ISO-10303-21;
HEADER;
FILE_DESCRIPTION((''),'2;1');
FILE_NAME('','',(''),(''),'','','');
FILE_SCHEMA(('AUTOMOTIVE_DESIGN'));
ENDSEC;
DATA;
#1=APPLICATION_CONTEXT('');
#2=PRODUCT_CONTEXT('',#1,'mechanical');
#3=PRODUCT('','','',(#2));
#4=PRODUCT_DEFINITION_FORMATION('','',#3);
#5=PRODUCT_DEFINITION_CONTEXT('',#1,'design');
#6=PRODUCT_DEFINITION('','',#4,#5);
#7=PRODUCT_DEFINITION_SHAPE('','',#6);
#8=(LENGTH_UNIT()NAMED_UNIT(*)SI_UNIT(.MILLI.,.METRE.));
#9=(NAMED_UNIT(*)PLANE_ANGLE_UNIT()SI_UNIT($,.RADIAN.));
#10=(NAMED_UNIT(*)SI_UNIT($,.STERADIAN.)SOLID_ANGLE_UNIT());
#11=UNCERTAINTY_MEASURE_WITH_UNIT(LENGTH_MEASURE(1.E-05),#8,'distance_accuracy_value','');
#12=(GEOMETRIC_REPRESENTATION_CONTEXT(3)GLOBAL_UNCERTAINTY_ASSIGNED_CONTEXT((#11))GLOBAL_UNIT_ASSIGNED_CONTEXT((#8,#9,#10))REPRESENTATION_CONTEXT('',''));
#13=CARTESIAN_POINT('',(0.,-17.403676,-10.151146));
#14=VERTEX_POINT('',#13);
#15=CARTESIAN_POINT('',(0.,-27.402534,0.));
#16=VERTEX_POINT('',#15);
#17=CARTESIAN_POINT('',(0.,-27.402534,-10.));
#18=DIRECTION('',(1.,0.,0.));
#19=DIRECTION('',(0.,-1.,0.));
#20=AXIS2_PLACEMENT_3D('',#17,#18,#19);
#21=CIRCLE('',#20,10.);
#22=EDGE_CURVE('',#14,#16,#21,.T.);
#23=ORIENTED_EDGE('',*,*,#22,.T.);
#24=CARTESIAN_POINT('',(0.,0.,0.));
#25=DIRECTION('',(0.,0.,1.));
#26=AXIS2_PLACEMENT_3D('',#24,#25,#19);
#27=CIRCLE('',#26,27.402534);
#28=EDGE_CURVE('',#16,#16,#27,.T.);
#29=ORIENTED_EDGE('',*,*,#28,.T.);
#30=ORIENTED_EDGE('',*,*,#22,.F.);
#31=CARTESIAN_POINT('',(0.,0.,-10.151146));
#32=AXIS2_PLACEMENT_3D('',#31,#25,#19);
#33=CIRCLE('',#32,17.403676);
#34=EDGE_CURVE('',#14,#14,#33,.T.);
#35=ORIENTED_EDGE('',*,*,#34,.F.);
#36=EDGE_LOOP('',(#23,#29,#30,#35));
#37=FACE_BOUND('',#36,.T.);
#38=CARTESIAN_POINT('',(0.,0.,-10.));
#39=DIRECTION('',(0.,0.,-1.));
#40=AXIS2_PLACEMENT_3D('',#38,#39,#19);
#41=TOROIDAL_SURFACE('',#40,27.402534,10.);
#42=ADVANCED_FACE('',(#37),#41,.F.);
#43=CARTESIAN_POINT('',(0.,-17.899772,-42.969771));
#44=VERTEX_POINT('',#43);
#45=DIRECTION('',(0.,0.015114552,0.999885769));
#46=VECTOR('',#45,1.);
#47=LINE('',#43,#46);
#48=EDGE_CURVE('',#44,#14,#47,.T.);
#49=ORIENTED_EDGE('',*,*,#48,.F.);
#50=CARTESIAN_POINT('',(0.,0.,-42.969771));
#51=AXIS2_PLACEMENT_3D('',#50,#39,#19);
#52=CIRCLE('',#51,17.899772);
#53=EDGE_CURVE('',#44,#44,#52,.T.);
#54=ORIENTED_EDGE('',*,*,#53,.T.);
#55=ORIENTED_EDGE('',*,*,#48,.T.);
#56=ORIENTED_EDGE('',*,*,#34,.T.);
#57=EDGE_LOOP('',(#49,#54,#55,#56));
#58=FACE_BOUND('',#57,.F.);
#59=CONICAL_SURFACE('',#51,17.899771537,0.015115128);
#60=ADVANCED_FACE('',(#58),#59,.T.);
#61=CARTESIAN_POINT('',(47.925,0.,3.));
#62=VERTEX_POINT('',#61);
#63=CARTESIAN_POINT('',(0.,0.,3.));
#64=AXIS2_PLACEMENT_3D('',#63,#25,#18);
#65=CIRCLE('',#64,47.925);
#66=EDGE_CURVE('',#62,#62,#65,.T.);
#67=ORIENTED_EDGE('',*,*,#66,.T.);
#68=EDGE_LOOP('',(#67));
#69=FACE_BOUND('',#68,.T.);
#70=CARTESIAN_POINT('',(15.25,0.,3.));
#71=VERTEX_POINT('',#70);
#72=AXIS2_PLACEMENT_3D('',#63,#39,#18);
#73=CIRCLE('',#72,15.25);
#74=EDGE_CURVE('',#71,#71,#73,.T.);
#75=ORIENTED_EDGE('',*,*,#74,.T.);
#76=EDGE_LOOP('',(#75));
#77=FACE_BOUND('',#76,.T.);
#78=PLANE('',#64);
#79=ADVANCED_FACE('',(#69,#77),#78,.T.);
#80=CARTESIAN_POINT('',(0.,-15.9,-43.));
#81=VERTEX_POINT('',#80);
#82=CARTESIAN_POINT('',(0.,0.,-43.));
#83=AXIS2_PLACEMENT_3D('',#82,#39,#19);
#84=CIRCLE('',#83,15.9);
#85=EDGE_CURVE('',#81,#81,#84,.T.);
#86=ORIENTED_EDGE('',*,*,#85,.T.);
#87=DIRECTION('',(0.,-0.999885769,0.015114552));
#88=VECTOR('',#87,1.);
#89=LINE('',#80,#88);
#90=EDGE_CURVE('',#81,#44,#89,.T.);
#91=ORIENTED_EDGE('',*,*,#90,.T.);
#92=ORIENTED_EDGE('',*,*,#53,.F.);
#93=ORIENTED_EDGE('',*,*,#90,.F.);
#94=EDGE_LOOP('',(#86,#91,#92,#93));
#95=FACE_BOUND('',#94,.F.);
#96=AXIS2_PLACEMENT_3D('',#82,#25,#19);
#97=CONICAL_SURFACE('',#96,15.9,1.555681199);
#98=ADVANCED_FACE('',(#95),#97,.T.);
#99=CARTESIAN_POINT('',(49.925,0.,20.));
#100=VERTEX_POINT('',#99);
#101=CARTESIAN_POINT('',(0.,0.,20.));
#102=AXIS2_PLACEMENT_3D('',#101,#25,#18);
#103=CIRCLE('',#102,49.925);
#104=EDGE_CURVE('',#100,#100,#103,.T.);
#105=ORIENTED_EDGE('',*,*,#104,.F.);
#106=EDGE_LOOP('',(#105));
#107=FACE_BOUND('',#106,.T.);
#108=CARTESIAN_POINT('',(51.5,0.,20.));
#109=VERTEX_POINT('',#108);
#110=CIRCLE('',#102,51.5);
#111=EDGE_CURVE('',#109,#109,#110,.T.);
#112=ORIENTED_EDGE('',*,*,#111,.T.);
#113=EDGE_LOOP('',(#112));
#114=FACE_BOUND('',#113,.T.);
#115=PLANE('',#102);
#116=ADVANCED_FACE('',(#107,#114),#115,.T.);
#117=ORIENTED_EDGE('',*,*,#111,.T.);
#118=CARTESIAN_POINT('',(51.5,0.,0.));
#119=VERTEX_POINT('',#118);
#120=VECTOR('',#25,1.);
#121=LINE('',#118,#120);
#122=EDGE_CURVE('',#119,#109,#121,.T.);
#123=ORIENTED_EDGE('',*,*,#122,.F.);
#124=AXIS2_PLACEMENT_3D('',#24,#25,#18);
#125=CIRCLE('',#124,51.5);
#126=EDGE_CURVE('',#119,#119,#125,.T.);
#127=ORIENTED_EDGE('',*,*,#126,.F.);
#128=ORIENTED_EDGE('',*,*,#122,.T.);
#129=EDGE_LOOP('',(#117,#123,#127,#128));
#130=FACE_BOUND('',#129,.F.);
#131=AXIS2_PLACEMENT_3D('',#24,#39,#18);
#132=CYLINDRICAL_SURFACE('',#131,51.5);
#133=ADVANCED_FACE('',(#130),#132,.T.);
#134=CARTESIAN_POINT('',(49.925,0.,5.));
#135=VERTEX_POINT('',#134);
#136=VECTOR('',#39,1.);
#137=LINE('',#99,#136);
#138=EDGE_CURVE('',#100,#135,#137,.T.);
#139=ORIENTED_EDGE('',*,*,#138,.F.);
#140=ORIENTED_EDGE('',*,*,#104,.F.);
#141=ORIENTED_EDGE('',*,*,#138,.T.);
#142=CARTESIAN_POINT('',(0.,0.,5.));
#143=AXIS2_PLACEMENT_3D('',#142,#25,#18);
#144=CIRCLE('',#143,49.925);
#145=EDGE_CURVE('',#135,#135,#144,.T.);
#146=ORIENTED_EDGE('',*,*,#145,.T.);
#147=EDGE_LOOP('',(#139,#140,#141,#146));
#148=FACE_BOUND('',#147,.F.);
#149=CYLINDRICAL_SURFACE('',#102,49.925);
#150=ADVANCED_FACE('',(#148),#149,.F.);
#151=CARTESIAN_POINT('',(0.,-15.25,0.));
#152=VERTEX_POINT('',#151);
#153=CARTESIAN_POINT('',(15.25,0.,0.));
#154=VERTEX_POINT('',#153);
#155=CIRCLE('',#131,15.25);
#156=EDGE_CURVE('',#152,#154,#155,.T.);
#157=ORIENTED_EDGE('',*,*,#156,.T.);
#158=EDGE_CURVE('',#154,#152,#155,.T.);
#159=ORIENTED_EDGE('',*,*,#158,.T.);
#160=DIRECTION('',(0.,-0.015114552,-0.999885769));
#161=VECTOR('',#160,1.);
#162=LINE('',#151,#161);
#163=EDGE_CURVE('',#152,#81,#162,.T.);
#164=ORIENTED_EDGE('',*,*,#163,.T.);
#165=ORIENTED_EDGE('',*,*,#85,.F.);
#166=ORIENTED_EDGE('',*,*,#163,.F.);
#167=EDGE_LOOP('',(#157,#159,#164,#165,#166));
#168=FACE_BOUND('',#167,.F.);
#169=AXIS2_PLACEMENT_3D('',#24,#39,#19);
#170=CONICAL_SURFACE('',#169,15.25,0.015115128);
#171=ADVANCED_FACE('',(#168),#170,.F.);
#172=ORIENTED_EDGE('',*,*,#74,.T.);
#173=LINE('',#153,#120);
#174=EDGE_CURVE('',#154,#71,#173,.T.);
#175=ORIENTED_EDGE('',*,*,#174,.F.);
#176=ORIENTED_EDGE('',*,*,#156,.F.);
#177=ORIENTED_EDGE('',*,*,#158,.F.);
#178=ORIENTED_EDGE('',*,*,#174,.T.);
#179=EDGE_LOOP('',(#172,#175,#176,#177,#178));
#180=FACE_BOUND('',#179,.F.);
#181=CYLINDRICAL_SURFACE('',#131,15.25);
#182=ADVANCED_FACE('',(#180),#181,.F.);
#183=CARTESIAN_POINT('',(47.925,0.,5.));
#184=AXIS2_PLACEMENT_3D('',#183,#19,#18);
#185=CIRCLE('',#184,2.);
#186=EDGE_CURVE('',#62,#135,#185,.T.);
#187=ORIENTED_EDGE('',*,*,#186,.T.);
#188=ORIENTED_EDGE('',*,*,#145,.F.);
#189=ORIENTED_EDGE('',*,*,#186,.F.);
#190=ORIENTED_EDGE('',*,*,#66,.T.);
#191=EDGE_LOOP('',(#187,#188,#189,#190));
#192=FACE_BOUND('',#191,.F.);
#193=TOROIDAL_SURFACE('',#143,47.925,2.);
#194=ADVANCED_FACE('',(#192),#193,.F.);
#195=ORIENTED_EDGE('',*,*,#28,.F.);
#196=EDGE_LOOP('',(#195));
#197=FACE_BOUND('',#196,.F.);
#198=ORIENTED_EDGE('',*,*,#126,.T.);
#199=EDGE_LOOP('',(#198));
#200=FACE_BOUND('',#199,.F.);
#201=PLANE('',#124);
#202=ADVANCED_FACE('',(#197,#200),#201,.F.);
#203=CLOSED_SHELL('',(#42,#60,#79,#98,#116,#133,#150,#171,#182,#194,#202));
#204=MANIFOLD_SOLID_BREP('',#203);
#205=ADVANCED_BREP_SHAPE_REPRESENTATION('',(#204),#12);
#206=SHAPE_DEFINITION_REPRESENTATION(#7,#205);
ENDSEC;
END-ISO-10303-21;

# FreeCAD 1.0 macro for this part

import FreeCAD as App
import Part
import Sketcher

V = App.Vector


def edges_at(feature, points):
    """Names of the edges that pass closest to the given points."""
    edges = feature.Shape.Edges
    near = lambda p: min(range(len(edges)), key=lambda i: edges[i].distToShape(Part.Vertex(*p))[0])
    return sorted({f"Edge{near(p) + 1}" for p in points})


def add_polygon(sketch, points):
    """Adds a closed chain of lines whose ends are joined by coincident constraints."""
    first, n = sketch.GeometryCount, len(points)
    for a, b in zip(points, points[1:] + points[:1]):
        sketch.addGeometry(Part.LineSegment(App.Vector(*a, 0), App.Vector(*b, 0)), False)
    for i in range(n):
        sketch.addConstraint(Sketcher.Constraint("Coincident", first + i, 2, first + (i + 1) % n, 1))

doc = App.newDocument("Part")
body = doc.addObject("PartDesign::Body", "Body")

sketch1 = body.newObject("Sketcher::SketchObject", "Sketch")
sketch1.AttachmentSupport = (doc.getObject("XY_Plane"), [""])
sketch1.MapMode = "FlatFace"
sketch1.addGeometry(Part.Circle(V(0, 0, 0), V(0, 0, 1), 52), False)
sketch1.addConstraint(Sketcher.Constraint("Coincident", 0, 3, -1, 1))
sketch1.addConstraint(Sketcher.Constraint("Diameter", 0, 103.0))
pad1 = body.newObject("PartDesign::Pad", "Pad")
pad1.Profile = sketch1
pad1.Length = 20

sketch2 = body.newObject("Sketcher::SketchObject", "Sketch001")
sketch2.AttachmentSupport = (doc.getObject("XY_Plane"), [""])
sketch2.MapMode = "FlatFace"
sketch2.AttachmentOffset = App.Placement(V(0, 0, 20), App.Rotation())
sketch2.addGeometry(Part.Circle(V(0, 0, 0), V(0, 0, 1), 50), False)
sketch2.addConstraint(Sketcher.Constraint("Coincident", 0, 3, -1, 1))
sketch2.addConstraint(Sketcher.Constraint("Diameter", 0, 99.85))
pocket1 = body.newObject("PartDesign::Pocket", "Pocket")
pocket1.Profile = sketch2
pocket1.Length = 17

sketch3 = body.newObject("Sketcher::SketchObject", "Sketch002")
sketch3.AttachmentSupport = (doc.getObject("XY_Plane"), [""])
sketch3.MapMode = "FlatFace"
sketch3.addGeometry(Part.Circle(V(0, 0, 0), V(0, 0, 1), 15), False)
sketch3.addConstraint(Sketcher.Constraint("Coincident", 0, 3, -1, 1))
sketch3.addConstraint(Sketcher.Constraint("Diameter", 0, 30.5))
pocket2 = body.newObject("PartDesign::Pocket", "Pocket001")
pocket2.Profile = sketch3
pocket2.Length = 25
pocket2.Reversed = True

sketch4 = body.newObject("Sketcher::SketchObject", "Sketch003")
sketch4.AttachmentSupport = (doc.getObject("YZ_Plane"), [""])
sketch4.MapMode = "FlatFace"
add_polygon(sketch4, [(17.2, 0), (15.2, 0), (15.9, -43), (17.9, -43)])
sketch4.addConstraint(Sketcher.Constraint("PointOnObject", 0, 2, -1))
sketch4.addConstraint(Sketcher.Constraint("Perpendicular", 0, 1))
sketch4.addConstraint(Sketcher.Constraint("Perpendicular", 1, 2))
sketch4.addConstraint(Sketcher.Constraint("Perpendicular", 2, 3))
sketch4.addConstraint(Sketcher.Constraint("Distance", 0, 2.0))
sketch4.addConstraint(Sketcher.Constraint("DistanceY", 1, 2, -1, 1, 43.0))
sketch4.addConstraint(Sketcher.Constraint("DistanceX", -1, 1, 1, 2, 15.9))
sketch4.addConstraint(Sketcher.Constraint("DistanceX", -1, 1, 0, 2, 15.25))

sketch5 = body.newObject("Sketcher::SketchObject", "Sketch004")
sketch5.AttachmentSupport = (doc.getObject("XY_Plane"), [""])
sketch5.MapMode = "FlatFace"
sketch5.addGeometry(Part.Circle(V(0, 0, 0), V(0, 0, 1), 52), False)
sketch5.addConstraint(Sketcher.Constraint("Coincident", 0, 3, -1, 1))
sketch5.addConstraint(Sketcher.Constraint("Diameter", 0, 103.0))
doc.recompute()

additivepipe = body.newObject("PartDesign::AdditivePipe", "AdditivePipe")
additivepipe.Profile = sketch4
additivepipe.Spine = (sketch5, ["Edge1"])
doc.recompute()

fillet = body.newObject("PartDesign::Fillet", "Fillet")
fillet.Base = (additivepipe, edges_at(additivepipe, [(0, 17.25, 0)]))
fillet.Radius = 10
doc.recompute()

fillet2 = body.newObject("PartDesign::Fillet", "Fillet001")
fillet2.Base = (fillet, edges_at(fillet, [(-49.925, 0, 3)]))
fillet2.Radius = 2

doc.recompute()
